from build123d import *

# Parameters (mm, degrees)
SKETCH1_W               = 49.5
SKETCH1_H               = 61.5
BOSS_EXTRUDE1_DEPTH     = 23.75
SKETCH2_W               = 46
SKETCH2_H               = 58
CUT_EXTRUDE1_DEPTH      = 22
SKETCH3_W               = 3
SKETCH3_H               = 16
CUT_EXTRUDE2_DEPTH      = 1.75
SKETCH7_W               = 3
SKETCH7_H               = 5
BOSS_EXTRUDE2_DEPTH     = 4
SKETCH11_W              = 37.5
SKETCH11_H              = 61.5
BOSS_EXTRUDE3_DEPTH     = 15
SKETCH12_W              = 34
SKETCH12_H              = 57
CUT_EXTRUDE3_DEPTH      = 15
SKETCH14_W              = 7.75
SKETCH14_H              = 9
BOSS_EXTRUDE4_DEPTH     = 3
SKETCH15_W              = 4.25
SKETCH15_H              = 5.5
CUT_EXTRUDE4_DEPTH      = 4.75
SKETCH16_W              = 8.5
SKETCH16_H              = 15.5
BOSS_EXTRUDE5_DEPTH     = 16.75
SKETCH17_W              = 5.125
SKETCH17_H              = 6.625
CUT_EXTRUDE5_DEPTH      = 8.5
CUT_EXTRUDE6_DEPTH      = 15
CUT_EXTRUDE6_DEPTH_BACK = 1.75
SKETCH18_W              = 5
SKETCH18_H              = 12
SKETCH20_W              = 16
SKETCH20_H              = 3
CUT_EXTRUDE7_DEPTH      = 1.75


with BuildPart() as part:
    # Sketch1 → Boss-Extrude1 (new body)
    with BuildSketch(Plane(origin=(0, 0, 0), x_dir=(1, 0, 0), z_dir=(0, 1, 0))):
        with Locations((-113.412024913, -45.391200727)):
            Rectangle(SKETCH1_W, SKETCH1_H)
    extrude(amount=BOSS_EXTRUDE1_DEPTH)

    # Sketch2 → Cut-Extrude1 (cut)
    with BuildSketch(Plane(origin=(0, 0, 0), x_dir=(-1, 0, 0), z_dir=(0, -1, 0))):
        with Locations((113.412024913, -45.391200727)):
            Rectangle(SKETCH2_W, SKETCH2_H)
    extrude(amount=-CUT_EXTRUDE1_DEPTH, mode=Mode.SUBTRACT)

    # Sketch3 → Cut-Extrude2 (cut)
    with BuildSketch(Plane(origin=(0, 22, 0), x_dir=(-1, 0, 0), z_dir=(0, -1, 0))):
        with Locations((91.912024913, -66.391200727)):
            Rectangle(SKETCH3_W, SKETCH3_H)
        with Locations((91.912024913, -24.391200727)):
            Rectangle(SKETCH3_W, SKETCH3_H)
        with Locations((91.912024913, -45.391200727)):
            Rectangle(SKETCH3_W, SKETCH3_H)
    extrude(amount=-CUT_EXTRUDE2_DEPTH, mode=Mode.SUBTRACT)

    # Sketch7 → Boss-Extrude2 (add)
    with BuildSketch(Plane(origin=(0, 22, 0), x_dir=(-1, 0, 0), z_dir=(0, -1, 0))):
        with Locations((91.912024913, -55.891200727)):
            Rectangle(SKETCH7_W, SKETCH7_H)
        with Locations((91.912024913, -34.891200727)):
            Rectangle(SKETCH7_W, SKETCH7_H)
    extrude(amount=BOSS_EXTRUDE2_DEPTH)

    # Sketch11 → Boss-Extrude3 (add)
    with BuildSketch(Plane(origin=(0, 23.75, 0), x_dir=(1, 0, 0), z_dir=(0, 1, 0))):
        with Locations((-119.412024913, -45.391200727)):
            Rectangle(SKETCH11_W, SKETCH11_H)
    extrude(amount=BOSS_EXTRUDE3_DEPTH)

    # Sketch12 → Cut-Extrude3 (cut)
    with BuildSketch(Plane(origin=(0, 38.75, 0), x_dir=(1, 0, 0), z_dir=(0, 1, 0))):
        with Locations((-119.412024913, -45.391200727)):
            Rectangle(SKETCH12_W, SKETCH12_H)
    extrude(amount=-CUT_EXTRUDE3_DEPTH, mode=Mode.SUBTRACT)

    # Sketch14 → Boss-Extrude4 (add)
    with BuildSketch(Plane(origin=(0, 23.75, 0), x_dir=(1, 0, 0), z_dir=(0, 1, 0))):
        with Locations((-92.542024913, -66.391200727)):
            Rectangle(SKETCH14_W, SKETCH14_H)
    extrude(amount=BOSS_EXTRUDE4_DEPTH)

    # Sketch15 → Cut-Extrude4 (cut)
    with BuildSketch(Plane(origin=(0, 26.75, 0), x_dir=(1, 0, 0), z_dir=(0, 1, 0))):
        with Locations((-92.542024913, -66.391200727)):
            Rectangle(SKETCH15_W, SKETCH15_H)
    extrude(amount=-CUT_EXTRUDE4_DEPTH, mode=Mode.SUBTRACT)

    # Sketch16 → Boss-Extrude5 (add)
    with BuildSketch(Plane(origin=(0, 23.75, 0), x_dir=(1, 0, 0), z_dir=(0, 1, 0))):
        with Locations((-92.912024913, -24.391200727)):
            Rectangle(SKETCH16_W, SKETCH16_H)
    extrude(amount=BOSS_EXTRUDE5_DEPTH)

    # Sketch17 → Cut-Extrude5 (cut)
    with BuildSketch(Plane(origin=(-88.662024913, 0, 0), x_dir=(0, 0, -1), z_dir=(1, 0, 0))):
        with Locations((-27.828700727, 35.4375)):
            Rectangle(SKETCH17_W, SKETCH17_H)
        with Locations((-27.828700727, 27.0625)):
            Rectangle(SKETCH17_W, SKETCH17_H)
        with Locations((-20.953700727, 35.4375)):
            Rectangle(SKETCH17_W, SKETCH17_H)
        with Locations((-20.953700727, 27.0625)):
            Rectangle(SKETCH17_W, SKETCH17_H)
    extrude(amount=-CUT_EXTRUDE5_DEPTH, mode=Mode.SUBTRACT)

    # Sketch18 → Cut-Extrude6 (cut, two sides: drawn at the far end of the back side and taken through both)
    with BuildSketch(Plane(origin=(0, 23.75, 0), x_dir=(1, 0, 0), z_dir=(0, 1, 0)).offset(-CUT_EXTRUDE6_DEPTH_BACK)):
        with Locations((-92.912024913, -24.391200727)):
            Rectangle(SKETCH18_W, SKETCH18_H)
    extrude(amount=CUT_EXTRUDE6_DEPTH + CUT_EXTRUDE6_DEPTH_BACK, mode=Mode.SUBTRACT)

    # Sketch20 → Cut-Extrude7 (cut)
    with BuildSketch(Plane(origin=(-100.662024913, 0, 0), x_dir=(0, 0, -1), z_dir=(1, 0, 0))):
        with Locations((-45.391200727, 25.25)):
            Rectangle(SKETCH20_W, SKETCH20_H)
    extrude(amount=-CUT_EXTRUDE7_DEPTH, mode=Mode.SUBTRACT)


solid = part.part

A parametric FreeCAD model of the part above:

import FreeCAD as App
import Part
import Sketcher

V = App.Vector

doc = App.newDocument("Part")
body = doc.addObject("PartDesign::Body", "Body")

# Sketch on XZ plane
sketch1 = body.newObject("Sketcher::SketchObject", "Sketch")
sketch1.AttachmentSupport = (doc.getObject("XZ_Plane"), [""])
sketch1.MapMode = "FlatFace"
sketch1.addGeometry(Part.LineSegment(V(-138, 15, 0), V(-138, 76, 0)), False)
sketch1.addGeometry(Part.LineSegment(V(-138, 76, 0), V(-89, 76, 0)), False)
sketch1.addGeometry(Part.LineSegment(V(-89, 76, 0), V(-89, 15, 0)), False)
sketch1.addGeometry(Part.LineSegment(V(-89, 15, 0), V(-138, 15, 0)), False)
sketch1.addConstraint(Sketcher.Constraint("Coincident", 0, 2, 1, 1))
sketch1.addConstraint(Sketcher.Constraint("Coincident", 1, 2, 2, 1))
sketch1.addConstraint(Sketcher.Constraint("Coincident", 2, 2, 3, 1))
sketch1.addConstraint(Sketcher.Constraint("Coincident", 3, 2, 0, 1))
sketch1.addConstraint(Sketcher.Constraint("Vertical", 0))
sketch1.addConstraint(Sketcher.Constraint("Horizontal", 1))
sketch1.addConstraint(Sketcher.Constraint("Vertical", 2))
sketch1.addConstraint(Sketcher.Constraint("Horizontal", 3))
sketch1.addConstraint(Sketcher.Constraint("DistanceX", 1, 1, 1, 2, 49.5))
sketch1.addConstraint(Sketcher.Constraint("DistanceY", 0, 1, 0, 2, 61.5))
sketch1.addConstraint(Sketcher.Constraint("DistanceY", -1, 1, 0, 2, 76.141201))
sketch1.addConstraint(Sketcher.Constraint("DistanceX", 0, 2, -1, 1, 138.162025))
pad1 = body.newObject("PartDesign::Pad", "Pad")
pad1.Profile = sketch1
pad1.Length = 23.75
pad1.Reversed = True

# Sketch on XZ plane
sketch2 = body.newObject("Sketcher::SketchObject", "Sketch001")
sketch2.AttachmentSupport = (doc.getObject("XZ_Plane"), [""])
sketch2.MapMode = "FlatFace"
sketch2.addGeometry(Part.LineSegment(V(-90, 16, 0), V(-90, 74, 0)), False)
sketch2.addGeometry(Part.LineSegment(V(-90, 74, 0), V(-136, 74, 0)), False)
sketch2.addGeometry(Part.LineSegment(V(-136, 74, 0), V(-136, 16, 0)), False)
sketch2.addGeometry(Part.LineSegment(V(-136, 16, 0), V(-90, 16, 0)), False)
sketch2.addConstraint(Sketcher.Constraint("Coincident", 0, 2, 1, 1))
sketch2.addConstraint(Sketcher.Constraint("Coincident", 1, 2, 2, 1))
sketch2.addConstraint(Sketcher.Constraint("Coincident", 2, 2, 3, 1))
sketch2.addConstraint(Sketcher.Constraint("Coincident", 3, 2, 0, 1))
sketch2.addConstraint(Sketcher.Constraint("Vertical", 0))
sketch2.addConstraint(Sketcher.Constraint("Horizontal", 1))
sketch2.addConstraint(Sketcher.Constraint("Vertical", 2))
sketch2.addConstraint(Sketcher.Constraint("Horizontal", 3))
sketch2.addConstraint(Sketcher.Constraint("DistanceX", 1, 2, 1, 1, 46.0))
sketch2.addConstraint(Sketcher.Constraint("DistanceY", 0, 1, 0, 2, 58.0))
sketch2.addConstraint(Sketcher.Constraint("DistanceY", -1, 1, 0, 2, 74.391201))
sketch2.addConstraint(Sketcher.Constraint("DistanceX", 0, 2, -1, 1, 90.412025))
pocket1 = body.newObject("PartDesign::Pocket", "Pocket")
pocket1.Profile = sketch2
pocket1.Length = 22

# Sketch on XZ plane
sketch3 = body.newObject("Sketcher::SketchObject", "Sketch002")
sketch3.AttachmentSupport = (doc.getObject("XZ_Plane"), [""])
sketch3.MapMode = "FlatFace"
sketch3.AttachmentOffset = App.Placement(V(0, 0, -22), App.Rotation())
sketch3.addGeometry(Part.LineSegment(V(-90.4, 58.4, 0), V(-90.4, 74.4, 0)), False)
sketch3.addGeometry(Part.LineSegment(V(-90.4, 74.4, 0), V(-93.4, 74.4, 0)), False)
sketch3.addGeometry(Part.LineSegment(V(-93.4, 74.4, 0), V(-93.4, 58.4, 0)), False)
sketch3.addGeometry(Part.LineSegment(V(-93.4, 58.4, 0), V(-90.4, 58.4, 0)), False)
sketch3.addGeometry(Part.LineSegment(V(-90.4, 16.4, 0), V(-90.4, 32.4, 0)), False)
sketch3.addGeometry(Part.LineSegment(V(-90.4, 32.4, 0), V(-93.4, 32.4, 0)), False)
sketch3.addGeometry(Part.LineSegment(V(-93.4, 32.4, 0), V(-93.4, 16.4, 0)), False)
sketch3.addGeometry(Part.LineSegment(V(-93.4, 16.4, 0), V(-90.4, 16.4, 0)), False)
sketch3.addGeometry(Part.LineSegment(V(-90.4, 37.4, 0), V(-90.4, 53.4, 0)), False)
sketch3.addGeometry(Part.LineSegment(V(-90.4, 53.4, 0), V(-93.4, 53.4, 0)), False)
sketch3.addGeometry(Part.LineSegment(V(-93.4, 53.4, 0), V(-93.4, 37.4, 0)), False)
sketch3.addGeometry(Part.LineSegment(V(-93.4, 37.4, 0), V(-90.4, 37.4, 0)), False)
sketch3.addConstraint(Sketcher.Constraint("Coincident", 0, 2, 1, 1))
sketch3.addConstraint(Sketcher.Constraint("Coincident", 1, 2, 2, 1))
sketch3.addConstraint(Sketcher.Constraint("Coincident", 2, 2, 3, 1))
sketch3.addConstraint(Sketcher.Constraint("Coincident", 3, 2, 0, 1))
sketch3.addConstraint(Sketcher.Constraint("Coincident", 4, 2, 5, 1))
sketch3.addConstraint(Sketcher.Constraint("Coincident", 5, 2, 6, 1))
sketch3.addConstraint(Sketcher.Constraint("Coincident", 6, 2, 7, 1))
sketch3.addConstraint(Sketcher.Constraint("Coincident", 7, 2, 4, 1))
sketch3.addConstraint(Sketcher.Constraint("Coincident", 8, 2, 9, 1))
sketch3.addConstraint(Sketcher.Constraint("Coincident", 9, 2, 10, 1))
sketch3.addConstraint(Sketcher.Constraint("Coincident", 10, 2, 11, 1))
sketch3.addConstraint(Sketcher.Constraint("Coincident", 11, 2, 8, 1))
sketch3.addConstraint(Sketcher.Constraint("Vertical", 0))
sketch3.addConstraint(Sketcher.Constraint("Horizontal", 1))
sketch3.addConstraint(Sketcher.Constraint("Vertical", 2))
sketch3.addConstraint(Sketcher.Constraint("Horizontal", 3))
sketch3.addConstraint(Sketcher.Constraint("Vertical", 4))
sketch3.addConstraint(Sketcher.Constraint("Horizontal", 5))
sketch3.addConstraint(Sketcher.Constraint("Vertical", 6))
sketch3.addConstraint(Sketcher.Constraint("Horizontal", 7))
sketch3.addConstraint(Sketcher.Constraint("Vertical", 8))
sketch3.addConstraint(Sketcher.Constraint("Horizontal", 9))
sketch3.addConstraint(Sketcher.Constraint("Vertical", 10))
sketch3.addConstraint(Sketcher.Constraint("Horizontal", 11))
sketch3.addConstraint(Sketcher.Constraint("Vertical", 3, 2, 4, 2))
sketch3.addConstraint(Sketcher.Constraint("Vertical", 2, 2, 5, 2))
sketch3.addConstraint(Sketcher.Constraint("Vertical", 7, 2, 8, 2))
sketch3.addConstraint(Sketcher.Constraint("Vertical", 6, 2, 9, 2))
sketch3.addConstraint(Sketcher.Constraint("Equal", 2, 4))
sketch3.addConstraint(Sketcher.Constraint("Equal", 6, 8))
sketch3.addConstraint(Sketcher.Constraint("DistanceX", 1, 2, 1, 1, 3.0))
sketch3.addConstraint(Sketcher.Constraint("DistanceY", 0, 1, 0, 2, 16.0))
sketch3.addConstraint(Sketcher.Constraint("DistanceY", 4, 2, 3, 2, 26.0))
sketch3.addConstraint(Sketcher.Constraint("DistanceY", 8, 2, 3, 2, 5.0))
sketch3.addConstraint(Sketcher.Constraint("DistanceY", -1, 1, 0, 2, 74.391201))
sketch3.addConstraint(Sketcher.Constraint("DistanceX", 0, 2, -1, 1, 90.412025))
pocket2 = body.newObject("PartDesign::Pocket", "Pocket001")
pocket2.Profile = sketch3
pocket2.Length = 1.75

# Sketch on XZ plane
sketch4 = body.newObject("Sketcher::SketchObject", "Sketch003")
sketch4.AttachmentSupport = (doc.getObject("XZ_Plane"), [""])
sketch4.MapMode = "FlatFace"
sketch4.AttachmentOffset = App.Placement(V(0, 0, -22), App.Rotation())
sketch4.addGeometry(Part.LineSegment(V(-90.4, 53.4, 0), V(-90.4, 58.4, 0)), False)
sketch4.addGeometry(Part.LineSegment(V(-90.4, 58.4, 0), V(-93.4, 58.4, 0)), False)
sketch4.addGeometry(Part.LineSegment(V(-93.4, 58.4, 0), V(-93.4, 53.4, 0)), False)
sketch4.addGeometry(Part.LineSegment(V(-93.4, 53.4, 0), V(-90.4, 53.4, 0)), False)
sketch4.addGeometry(Part.LineSegment(V(-90.4, 32.4, 0), V(-90.4, 37.4, 0)), False)
sketch4.addGeometry(Part.LineSegment(V(-90.4, 37.4, 0), V(-93.4, 37.4, 0)), False)
sketch4.addGeometry(Part.LineSegment(V(-93.4, 37.4, 0), V(-93.4, 32.4, 0)), False)
sketch4.addGeometry(Part.LineSegment(V(-93.4, 32.4, 0), V(-90.4, 32.4, 0)), False)
sketch4.addConstraint(Sketcher.Constraint("Coincident", 0, 2, 1, 1))
sketch4.addConstraint(Sketcher.Constraint("Coincident", 1, 2, 2, 1))
sketch4.addConstraint(Sketcher.Constraint("Coincident", 2, 2, 3, 1))
sketch4.addConstraint(Sketcher.Constraint("Coincident", 3, 2, 0, 1))
sketch4.addConstraint(Sketcher.Constraint("Coincident", 4, 2, 5, 1))
sketch4.addConstraint(Sketcher.Constraint("Coincident", 5, 2, 6, 1))
sketch4.addConstraint(Sketcher.Constraint("Coincident", 6, 2, 7, 1))
sketch4.addConstraint(Sketcher.Constraint("Coincident", 7, 2, 4, 1))
sketch4.addConstraint(Sketcher.Constraint("Vertical", 0))
sketch4.addConstraint(Sketcher.Constraint("Horizontal", 1))
sketch4.addConstraint(Sketcher.Constraint("Vertical", 2))
sketch4.addConstraint(Sketcher.Constraint("Horizontal", 3))
sketch4.addConstraint(Sketcher.Constraint("Vertical", 4))
sketch4.addConstraint(Sketcher.Constraint("Horizontal", 5))
sketch4.addConstraint(Sketcher.Constraint("Vertical", 6))
sketch4.addConstraint(Sketcher.Constraint("Horizontal", 7))
sketch4.addConstraint(Sketcher.Constraint("Vertical", 3, 2, 4, 2))
sketch4.addConstraint(Sketcher.Constraint("Vertical", 2, 2, 5, 2))
sketch4.addConstraint(Sketcher.Constraint("Equal", 2, 4))
sketch4.addConstraint(Sketcher.Constraint("DistanceX", 1, 2, 1, 1, 3.0))
sketch4.addConstraint(Sketcher.Constraint("DistanceY", 0, 1, 0, 2, 5.0))
sketch4.addConstraint(Sketcher.Constraint("DistanceY", 4, 2, 3, 2, 16.0))
sketch4.addConstraint(Sketcher.Constraint("DistanceY", -1, 1, 0, 2, 58.391201))
sketch4.addConstraint(Sketcher.Constraint("DistanceX", 0, 2, -1, 1, 90.412025))
pad2 = body.newObject("PartDesign::Pad", "Pad001")
pad2.Profile = sketch4
pad2.Length = 4

# Sketch on XZ plane
sketch5 = body.newObject("Sketcher::SketchObject", "Sketch004")
sketch5.AttachmentSupport = (doc.getObject("XZ_Plane"), [""])
sketch5.MapMode = "FlatFace"
sketch5.AttachmentOffset = App.Placement(V(0, 0, -23.75), App.Rotation())
sketch5.addGeometry(Part.LineSegment(V(-138, 15, 0), V(-138, 76, 0)), False)
sketch5.addGeometry(Part.LineSegment(V(-138, 76, 0), V(-101, 76, 0)), False)
sketch5.addGeometry(Part.LineSegment(V(-101, 76, 0), V(-101, 15, 0)), False)
sketch5.addGeometry(Part.LineSegment(V(-101, 15, 0), V(-138, 15, 0)), False)
sketch5.addConstraint(Sketcher.Constraint("Coincident", 0, 2, 1, 1))
sketch5.addConstraint(Sketcher.Constraint("Coincident", 1, 2, 2, 1))
sketch5.addConstraint(Sketcher.Constraint("Coincident", 2, 2, 3, 1))
sketch5.addConstraint(Sketcher.Constraint("Coincident", 3, 2, 0, 1))
sketch5.addConstraint(Sketcher.Constraint("Vertical", 0))
sketch5.addConstraint(Sketcher.Constraint("Horizontal", 1))
sketch5.addConstraint(Sketcher.Constraint("Vertical", 2))
sketch5.addConstraint(Sketcher.Constraint("Horizontal", 3))
sketch5.addConstraint(Sketcher.Constraint("DistanceX", 1, 1, 1, 2, 37.5))
sketch5.addConstraint(Sketcher.Constraint("DistanceY", 0, 1, 0, 2, 61.5))
sketch5.addConstraint(Sketcher.Constraint("DistanceY", -1, 1, 0, 2, 76.141201))
sketch5.addConstraint(Sketcher.Constraint("DistanceX", 0, 2, -1, 1, 138.162025))
pad3 = body.newObject("PartDesign::Pad", "Pad002")
pad3.Profile = sketch5
pad3.Length = 15
pad3.Reversed = True

# Sketch on XZ plane
sketch6 = body.newObject("Sketcher::SketchObject", "Sketch005")
sketch6.AttachmentSupport = (doc.getObject("XZ_Plane"), [""])
sketch6.MapMode = "FlatFace"
sketch6.AttachmentOffset = App.Placement(V(0, 0, -38.75), App.Rotation())
sketch6.addGeometry(Part.LineSegment(V(-136, 17, 0), V(-136, 74, 0)), False)
sketch6.addGeometry(Part.LineSegment(V(-136, 74, 0), V(-102, 74, 0)), False)
sketch6.addGeometry(Part.LineSegment(V(-102, 74, 0), V(-102, 17, 0)), False)
sketch6.addGeometry(Part.LineSegment(V(-102, 17, 0), V(-136, 17, 0)), False)
sketch6.addConstraint(Sketcher.Constraint("Coincident", 0, 2, 1, 1))
sketch6.addConstraint(Sketcher.Constraint("Coincident", 1, 2, 2, 1))
sketch6.addConstraint(Sketcher.Constraint("Coincident", 2, 2, 3, 1))
sketch6.addConstraint(Sketcher.Constraint("Coincident", 3, 2, 0, 1))
sketch6.addConstraint(Sketcher.Constraint("Vertical", 0))
sketch6.addConstraint(Sketcher.Constraint("Horizontal", 1))
sketch6.addConstraint(Sketcher.Constraint("Vertical", 2))
sketch6.addConstraint(Sketcher.Constraint("Horizontal", 3))
sketch6.addConstraint(Sketcher.Constraint("DistanceX", 1, 1, 1, 2, 34.0))
sketch6.addConstraint(Sketcher.Constraint("DistanceY", 0, 1, 0, 2, 57.0))
sketch6.addConstraint(Sketcher.Constraint("DistanceY", -1, 1, 0, 2, 73.891201))
sketch6.addConstraint(Sketcher.Constraint("DistanceX", 0, 2, -1, 1, 136.412025))
pocket3 = body.newObject("PartDesign::Pocket", "Pocket002")
pocket3.Profile = sketch6
pocket3.Length = 15
pocket3.Reversed = True

# Sketch on XZ plane
sketch7 = body.newObject("Sketcher::SketchObject", "Sketch006")
sketch7.AttachmentSupport = (doc.getObject("XZ_Plane"), [""])
sketch7.MapMode = "FlatFace"
sketch7.AttachmentOffset = App.Placement(V(0, 0, -23.75), App.Rotation())
sketch7.addGeometry(Part.LineSegment(V(-96, 62, 0), V(-96, 71, 0)), False)
sketch7.addGeometry(Part.LineSegment(V(-96, 71, 0), V(-89, 71, 0)), False)
sketch7.addGeometry(Part.LineSegment(V(-89, 71, 0), V(-89, 62, 0)), False)
sketch7.addGeometry(Part.LineSegment(V(-89, 62, 0), V(-96, 62, 0)), False)
sketch7.addConstraint(Sketcher.Constraint("Coincident", 0, 2, 1, 1))
sketch7.addConstraint(Sketcher.Constraint("Coincident", 1, 2, 2, 1))
sketch7.addConstraint(Sketcher.Constraint("Coincident", 2, 2, 3, 1))
sketch7.addConstraint(Sketcher.Constraint("Coincident", 3, 2, 0, 1))
sketch7.addConstraint(Sketcher.Constraint("Vertical", 0))
sketch7.addConstraint(Sketcher.Constraint("Horizontal", 1))
sketch7.addConstraint(Sketcher.Constraint("Vertical", 2))
sketch7.addConstraint(Sketcher.Constraint("Horizontal", 3))
sketch7.addConstraint(Sketcher.Constraint("DistanceY", 0, 1, 0, 2, 9.0))
sketch7.addConstraint(Sketcher.Constraint("DistanceX", 1, 1, 1, 2, 7.75))
sketch7.addConstraint(Sketcher.Constraint("DistanceY", -1, 1, 0, 2, 70.891201))
sketch7.addConstraint(Sketcher.Constraint("DistanceX", 0, 2, -1, 1, 96.417025))
pad4 = body.newObject("PartDesign::Pad", "Pad003")
pad4.Profile = sketch7
pad4.Length = 3
pad4.Reversed = True

# Sketch on XZ plane
sketch8 = body.newObject("Sketcher::SketchObject", "Sketch007")
sketch8.AttachmentSupport = (doc.getObject("XZ_Plane"), [""])
sketch8.MapMode = "FlatFace"
sketch8.AttachmentOffset = App.Placement(V(0, 0, -26.75), App.Rotation())
sketch8.addGeometry(Part.LineSegment(V(-94.7, 63.6, 0), V(-94.7, 69.1, 0)), False)
sketch8.addGeometry(Part.LineSegment(V(-94.7, 69.1, 0), V(-90.4, 69.1, 0)), False)
sketch8.addGeometry(Part.LineSegment(V(-90.4, 69.1, 0), V(-90.4, 63.6, 0)), False)
sketch8.addGeometry(Part.LineSegment(V(-90.4, 63.6, 0), V(-94.7, 63.6, 0)), False)
sketch8.addConstraint(Sketcher.Constraint("Coincident", 0, 2, 1, 1))
sketch8.addConstraint(Sketcher.Constraint("Coincident", 1, 2, 2, 1))
sketch8.addConstraint(Sketcher.Constraint("Coincident", 2, 2, 3, 1))
sketch8.addConstraint(Sketcher.Constraint("Coincident", 3, 2, 0, 1))
sketch8.addConstraint(Sketcher.Constraint("Vertical", 0))
sketch8.addConstraint(Sketcher.Constraint("Horizontal", 1))
sketch8.addConstraint(Sketcher.Constraint("Vertical", 2))
sketch8.addConstraint(Sketcher.Constraint("Horizontal", 3))
sketch8.addConstraint(Sketcher.Constraint("DistanceY", 0, 1, 0, 2, 5.5))
sketch8.addConstraint(Sketcher.Constraint("DistanceX", 1, 1, 1, 2, 4.25))
sketch8.addConstraint(Sketcher.Constraint("DistanceY", -1, 1, 0, 2, 69.141201))
sketch8.addConstraint(Sketcher.Constraint("DistanceX", 0, 2, -1, 1, 94.667025))
pocket4 = body.newObject("PartDesign::Pocket", "Pocket003")
pocket4.Profile = sketch8
pocket4.Length = 4.75
pocket4.Reversed = True

# Sketch on XZ plane
sketch9 = body.newObject("Sketcher::SketchObject", "Sketch008")
sketch9.AttachmentSupport = (doc.getObject("XZ_Plane"), [""])
sketch9.MapMode = "FlatFace"
sketch9.AttachmentOffset = App.Placement(V(0, 0, -23.75), App.Rotation())
sketch9.addGeometry(Part.LineSegment(V(-97, 17, 0), V(-97, 32, 0)), False)
sketch9.addGeometry(Part.LineSegment(V(-97, 32, 0), V(-89, 32, 0)), False)
sketch9.addGeometry(Part.LineSegment(V(-89, 32, 0), V(-89, 17, 0)), False)
sketch9.addGeometry(Part.LineSegment(V(-89, 17, 0), V(-97, 17, 0)), False)
sketch9.addConstraint(Sketcher.Constraint("Coincident", 0, 2, 1, 1))
sketch9.addConstraint(Sketcher.Constraint("Coincident", 1, 2, 2, 1))
sketch9.addConstraint(Sketcher.Constraint("Coincident", 2, 2, 3, 1))
sketch9.addConstraint(Sketcher.Constraint("Coincident", 3, 2, 0, 1))
sketch9.addConstraint(Sketcher.Constraint("Vertical", 0))
sketch9.addConstraint(Sketcher.Constraint("Horizontal", 1))
sketch9.addConstraint(Sketcher.Constraint("Vertical", 2))
sketch9.addConstraint(Sketcher.Constraint("Horizontal", 3))
sketch9.addConstraint(Sketcher.Constraint("DistanceX", 1, 1, 1, 2, 8.5))
sketch9.addConstraint(Sketcher.Constraint("DistanceY", 0, 1, 0, 2, 15.5))
sketch9.addConstraint(Sketcher.Constraint("DistanceY", -1, 1, 0, 2, 32.141201))
sketch9.addConstraint(Sketcher.Constraint("DistanceX", 0, 2, -1, 1, 97.162025))
pad5 = body.newObject("PartDesign::Pad", "Pad004")
pad5.Profile = sketch9
pad5.Length = 16.75
pad5.Reversed = True

# Sketch on YZ plane
sketch10 = body.newObject("Sketcher::SketchObject", "Sketch009")
sketch10.AttachmentSupport = (doc.getObject("YZ_Plane"), [""])
sketch10.MapMode = "FlatFace"
sketch10.AttachmentOffset = App.Placement(V(0, 0, -88.662025), App.Rotation())
sketch10.addGeometry(Part.LineSegment(V(39, 30, 0), V(32, 30, 0)), False)
sketch10.addGeometry(Part.LineSegment(V(32, 30, 0), V(32, 25, 0)), False)
sketch10.addGeometry(Part.LineSegment(V(32, 25, 0), V(39, 25, 0)), False)
sketch10.addGeometry(Part.LineSegment(V(39, 25, 0), V(39, 30, 0)), False)
sketch10.addGeometry(Part.LineSegment(V(30, 30, 0), V(24, 30, 0)), False)
sketch10.addGeometry(Part.LineSegment(V(24, 30, 0), V(24, 25, 0)), False)
sketch10.addGeometry(Part.LineSegment(V(24, 25, 0), V(30, 25, 0)), False)
sketch10.addGeometry(Part.LineSegment(V(30, 25, 0), V(30, 30, 0)), False)
sketch10.addGeometry(Part.LineSegment(V(39, 24, 0), V(32, 24, 0)), False)
sketch10.addGeometry(Part.LineSegment(V(32, 24, 0), V(32, 18, 0)), False)
sketch10.addGeometry(Part.LineSegment(V(32, 18, 0), V(39, 18, 0)), False)
sketch10.addGeometry(Part.LineSegment(V(39, 18, 0), V(39, 24, 0)), False)
sketch10.addGeometry(Part.LineSegment(V(30, 24, 0), V(24, 24, 0)), False)
sketch10.addGeometry(Part.LineSegment(V(24, 24, 0), V(24, 18, 0)), False)
sketch10.addGeometry(Part.LineSegment(V(24, 18, 0), V(30, 18, 0)), False)
sketch10.addGeometry(Part.LineSegment(V(30, 18, 0), V(30, 24, 0)), False)
sketch10.addConstraint(Sketcher.Constraint("Coincident", 0, 2, 1, 1))
sketch10.addConstraint(Sketcher.Constraint("Coincident", 1, 2, 2, 1))
sketch10.addConstraint(Sketcher.Constraint("Coincident", 2, 2, 3, 1))
sketch10.addConstraint(Sketcher.Constraint("Coincident", 3, 2, 0, 1))
sketch10.addConstraint(Sketcher.Constraint("Coincident", 4, 2, 5, 1))
sketch10.addConstraint(Sketcher.Constraint("Coincident", 5, 2, 6, 1))
sketch10.addConstraint(Sketcher.Constraint("Coincident", 6, 2, 7, 1))
sketch10.addConstraint(Sketcher.Constraint("Coincident", 7, 2, 4, 1))
sketch10.addConstraint(Sketcher.Constraint("Coincident", 8, 2, 9, 1))
sketch10.addConstraint(Sketcher.Constraint("Coincident", 9, 2, 10, 1))
sketch10.addConstraint(Sketcher.Constraint("Coincident", 10, 2, 11, 1))
sketch10.addConstraint(Sketcher.Constraint("Coincident", 11, 2, 8, 1))
sketch10.addConstraint(Sketcher.Constraint("Coincident", 12, 2, 13, 1))
sketch10.addConstraint(Sketcher.Constraint("Coincident", 13, 2, 14, 1))
sketch10.addConstraint(Sketcher.Constraint("Coincident", 14, 2, 15, 1))
sketch10.addConstraint(Sketcher.Constraint("Coincident", 15, 2, 12, 1))
sketch10.addConstraint(Sketcher.Constraint("Horizontal", 0))
sketch10.addConstraint(Sketcher.Constraint("Vertical", 1))
sketch10.addConstraint(Sketcher.Constraint("Horizontal", 2))
sketch10.addConstraint(Sketcher.Constraint("Vertical", 3))
sketch10.addConstraint(Sketcher.Constraint("Horizontal", 4))
sketch10.addConstraint(Sketcher.Constraint("Vertical", 5))
sketch10.addConstraint(Sketcher.Constraint("Horizontal", 6))
sketch10.addConstraint(Sketcher.Constraint("Vertical", 7))
sketch10.addConstraint(Sketcher.Constraint("Horizontal", 8))
sketch10.addConstraint(Sketcher.Constraint("Vertical", 9))
sketch10.addConstraint(Sketcher.Constraint("Horizontal", 10))
sketch10.addConstraint(Sketcher.Constraint("Vertical", 11))
sketch10.addConstraint(Sketcher.Constraint("Horizontal", 12))
sketch10.addConstraint(Sketcher.Constraint("Vertical", 13))
sketch10.addConstraint(Sketcher.Constraint("Horizontal", 14))
sketch10.addConstraint(Sketcher.Constraint("Vertical", 15))
sketch10.addConstraint(Sketcher.Constraint("Horizontal", 3, 2, 4, 2))
sketch10.addConstraint(Sketcher.Constraint("Horizontal", 2, 2, 5, 2))
sketch10.addConstraint(Sketcher.Constraint("Horizontal", 11, 2, 12, 2))
sketch10.addConstraint(Sketcher.Constraint("Horizontal", 10, 2, 13, 2))
sketch10.addConstraint(Sketcher.Constraint("Vertical", 1, 2, 8, 2))
sketch10.addConstraint(Sketcher.Constraint("Vertical", 3, 2, 10, 2))
sketch10.addConstraint(Sketcher.Constraint("Vertical", 5, 2, 12, 2))
sketch10.addConstraint(Sketcher.Constraint("Vertical", 7, 2, 14, 2))
sketch10.addConstraint(Sketcher.Constraint("Equal", 2, 4))
sketch10.addConstraint(Sketcher.Constraint("Equal", 7, 9))
sketch10.addConstraint(Sketcher.Constraint("DistanceX", 4, 2, 3, 2, 15.0))
sketch10.addConstraint(Sketcher.Constraint("DistanceX", 0, 2, 0, 1, 6.625))
sketch10.addConstraint(Sketcher.Constraint("DistanceY", 1, 2, 1, 1, 5.125))
sketch10.addConstraint(Sketcher.Constraint("DistanceX", -1, 1, 2, 2, 38.75))
sketch10.addConstraint(Sketcher.Constraint("DistanceY", 8, 2, 1, 2, 1.75))
sketch10.addConstraint(Sketcher.Constraint("DistanceY", -1, 1, 0, 2, 30.391201))
pocket5 = body.newObject("PartDesign::Pocket", "Pocket004")
pocket5.Profile = sketch10
pocket5.Length = 8.5

# Sketch on XZ plane
sketch11 = body.newObject("Sketcher::SketchObject", "Sketch010")
sketch11.AttachmentSupport = (doc.getObject("XZ_Plane"), [""])
sketch11.MapMode = "FlatFace"
sketch11.AttachmentOffset = App.Placement(V(0, 0, -23.75), App.Rotation())
sketch11.addGeometry(Part.LineSegment(V(-95, 18, 0), V(-95, 30, 0)), False)
sketch11.addGeometry(Part.LineSegment(V(-95, 30, 0), V(-90, 30, 0)), False)
sketch11.addGeometry(Part.LineSegment(V(-90, 30, 0), V(-90, 18, 0)), False)
sketch11.addGeometry(Part.LineSegment(V(-90, 18, 0), V(-95, 18, 0)), False)
sketch11.addConstraint(Sketcher.Constraint("Coincident", 0, 2, 1, 1))
sketch11.addConstraint(Sketcher.Constraint("Coincident", 1, 2, 2, 1))
sketch11.addConstraint(Sketcher.Constraint("Coincident", 2, 2, 3, 1))
sketch11.addConstraint(Sketcher.Constraint("Coincident", 3, 2, 0, 1))
sketch11.addConstraint(Sketcher.Constraint("Vertical", 0))
sketch11.addConstraint(Sketcher.Constraint("Horizontal", 1))
sketch11.addConstraint(Sketcher.Constraint("Vertical", 2))
sketch11.addConstraint(Sketcher.Constraint("Horizontal", 3))
sketch11.addConstraint(Sketcher.Constraint("DistanceX", 1, 1, 1, 2, 5.0))
sketch11.addConstraint(Sketcher.Constraint("DistanceY", 0, 1, 0, 2, 12.0))
sketch11.addConstraint(Sketcher.Constraint("DistanceY", -1, 1, 0, 2, 30.391201))
sketch11.addConstraint(Sketcher.Constraint("DistanceX", 0, 2, -1, 1, 95.412025))
pocket6 = body.newObject("PartDesign::Pocket", "Pocket005")
pocket6.Profile = sketch11
pocket6.Type = "TwoLengths"
pocket6.Length = 15
pocket6.Length2 = 1.75

# Sketch on YZ plane
sketch12 = body.newObject("Sketcher::SketchObject", "Sketch011")
sketch12.AttachmentSupport = (doc.getObject("YZ_Plane"), [""])
sketch12.MapMode = "FlatFace"
sketch12.AttachmentOffset = App.Placement(V(0, 0, -100.662025), App.Rotation())
sketch12.addGeometry(Part.LineSegment(V(26.8, 53.4, 0), V(23.8, 53.4, 0)), False)
sketch12.addGeometry(Part.LineSegment(V(23.8, 53.4, 0), V(23.8, 37.4, 0)), False)
sketch12.addGeometry(Part.LineSegment(V(23.8, 37.4, 0), V(26.8, 37.4, 0)), False)
sketch12.addGeometry(Part.LineSegment(V(26.8, 37.4, 0), V(26.8, 53.4, 0)), False)
sketch12.addConstraint(Sketcher.Constraint("Coincident", 0, 2, 1, 1))
sketch12.addConstraint(Sketcher.Constraint("Coincident", 1, 2, 2, 1))
sketch12.addConstraint(Sketcher.Constraint("Coincident", 2, 2, 3, 1))
sketch12.addConstraint(Sketcher.Constraint("Coincident", 3, 2, 0, 1))
sketch12.addConstraint(Sketcher.Constraint("Horizontal", 0))
sketch12.addConstraint(Sketcher.Constraint("Vertical", 1))
sketch12.addConstraint(Sketcher.Constraint("Horizontal", 2))
sketch12.addConstraint(Sketcher.Constraint("Vertical", 3))
sketch12.addConstraint(Sketcher.Constraint("DistanceX", 0, 2, 0, 1, 3.0))
sketch12.addConstraint(Sketcher.Constraint("DistanceY", 1, 2, 1, 1, 16.0))
sketch12.addConstraint(Sketcher.Constraint("DistanceX", -1, 1, 0, 2, 23.75))
sketch12.addConstraint(Sketcher.Constraint("DistanceY", -1, 1, 0, 2, 53.391201))
pocket7 = body.newObject("PartDesign::Pocket", "Pocket006")
pocket7.Profile = sketch12
pocket7.Length = 1.75

doc.recompute()
